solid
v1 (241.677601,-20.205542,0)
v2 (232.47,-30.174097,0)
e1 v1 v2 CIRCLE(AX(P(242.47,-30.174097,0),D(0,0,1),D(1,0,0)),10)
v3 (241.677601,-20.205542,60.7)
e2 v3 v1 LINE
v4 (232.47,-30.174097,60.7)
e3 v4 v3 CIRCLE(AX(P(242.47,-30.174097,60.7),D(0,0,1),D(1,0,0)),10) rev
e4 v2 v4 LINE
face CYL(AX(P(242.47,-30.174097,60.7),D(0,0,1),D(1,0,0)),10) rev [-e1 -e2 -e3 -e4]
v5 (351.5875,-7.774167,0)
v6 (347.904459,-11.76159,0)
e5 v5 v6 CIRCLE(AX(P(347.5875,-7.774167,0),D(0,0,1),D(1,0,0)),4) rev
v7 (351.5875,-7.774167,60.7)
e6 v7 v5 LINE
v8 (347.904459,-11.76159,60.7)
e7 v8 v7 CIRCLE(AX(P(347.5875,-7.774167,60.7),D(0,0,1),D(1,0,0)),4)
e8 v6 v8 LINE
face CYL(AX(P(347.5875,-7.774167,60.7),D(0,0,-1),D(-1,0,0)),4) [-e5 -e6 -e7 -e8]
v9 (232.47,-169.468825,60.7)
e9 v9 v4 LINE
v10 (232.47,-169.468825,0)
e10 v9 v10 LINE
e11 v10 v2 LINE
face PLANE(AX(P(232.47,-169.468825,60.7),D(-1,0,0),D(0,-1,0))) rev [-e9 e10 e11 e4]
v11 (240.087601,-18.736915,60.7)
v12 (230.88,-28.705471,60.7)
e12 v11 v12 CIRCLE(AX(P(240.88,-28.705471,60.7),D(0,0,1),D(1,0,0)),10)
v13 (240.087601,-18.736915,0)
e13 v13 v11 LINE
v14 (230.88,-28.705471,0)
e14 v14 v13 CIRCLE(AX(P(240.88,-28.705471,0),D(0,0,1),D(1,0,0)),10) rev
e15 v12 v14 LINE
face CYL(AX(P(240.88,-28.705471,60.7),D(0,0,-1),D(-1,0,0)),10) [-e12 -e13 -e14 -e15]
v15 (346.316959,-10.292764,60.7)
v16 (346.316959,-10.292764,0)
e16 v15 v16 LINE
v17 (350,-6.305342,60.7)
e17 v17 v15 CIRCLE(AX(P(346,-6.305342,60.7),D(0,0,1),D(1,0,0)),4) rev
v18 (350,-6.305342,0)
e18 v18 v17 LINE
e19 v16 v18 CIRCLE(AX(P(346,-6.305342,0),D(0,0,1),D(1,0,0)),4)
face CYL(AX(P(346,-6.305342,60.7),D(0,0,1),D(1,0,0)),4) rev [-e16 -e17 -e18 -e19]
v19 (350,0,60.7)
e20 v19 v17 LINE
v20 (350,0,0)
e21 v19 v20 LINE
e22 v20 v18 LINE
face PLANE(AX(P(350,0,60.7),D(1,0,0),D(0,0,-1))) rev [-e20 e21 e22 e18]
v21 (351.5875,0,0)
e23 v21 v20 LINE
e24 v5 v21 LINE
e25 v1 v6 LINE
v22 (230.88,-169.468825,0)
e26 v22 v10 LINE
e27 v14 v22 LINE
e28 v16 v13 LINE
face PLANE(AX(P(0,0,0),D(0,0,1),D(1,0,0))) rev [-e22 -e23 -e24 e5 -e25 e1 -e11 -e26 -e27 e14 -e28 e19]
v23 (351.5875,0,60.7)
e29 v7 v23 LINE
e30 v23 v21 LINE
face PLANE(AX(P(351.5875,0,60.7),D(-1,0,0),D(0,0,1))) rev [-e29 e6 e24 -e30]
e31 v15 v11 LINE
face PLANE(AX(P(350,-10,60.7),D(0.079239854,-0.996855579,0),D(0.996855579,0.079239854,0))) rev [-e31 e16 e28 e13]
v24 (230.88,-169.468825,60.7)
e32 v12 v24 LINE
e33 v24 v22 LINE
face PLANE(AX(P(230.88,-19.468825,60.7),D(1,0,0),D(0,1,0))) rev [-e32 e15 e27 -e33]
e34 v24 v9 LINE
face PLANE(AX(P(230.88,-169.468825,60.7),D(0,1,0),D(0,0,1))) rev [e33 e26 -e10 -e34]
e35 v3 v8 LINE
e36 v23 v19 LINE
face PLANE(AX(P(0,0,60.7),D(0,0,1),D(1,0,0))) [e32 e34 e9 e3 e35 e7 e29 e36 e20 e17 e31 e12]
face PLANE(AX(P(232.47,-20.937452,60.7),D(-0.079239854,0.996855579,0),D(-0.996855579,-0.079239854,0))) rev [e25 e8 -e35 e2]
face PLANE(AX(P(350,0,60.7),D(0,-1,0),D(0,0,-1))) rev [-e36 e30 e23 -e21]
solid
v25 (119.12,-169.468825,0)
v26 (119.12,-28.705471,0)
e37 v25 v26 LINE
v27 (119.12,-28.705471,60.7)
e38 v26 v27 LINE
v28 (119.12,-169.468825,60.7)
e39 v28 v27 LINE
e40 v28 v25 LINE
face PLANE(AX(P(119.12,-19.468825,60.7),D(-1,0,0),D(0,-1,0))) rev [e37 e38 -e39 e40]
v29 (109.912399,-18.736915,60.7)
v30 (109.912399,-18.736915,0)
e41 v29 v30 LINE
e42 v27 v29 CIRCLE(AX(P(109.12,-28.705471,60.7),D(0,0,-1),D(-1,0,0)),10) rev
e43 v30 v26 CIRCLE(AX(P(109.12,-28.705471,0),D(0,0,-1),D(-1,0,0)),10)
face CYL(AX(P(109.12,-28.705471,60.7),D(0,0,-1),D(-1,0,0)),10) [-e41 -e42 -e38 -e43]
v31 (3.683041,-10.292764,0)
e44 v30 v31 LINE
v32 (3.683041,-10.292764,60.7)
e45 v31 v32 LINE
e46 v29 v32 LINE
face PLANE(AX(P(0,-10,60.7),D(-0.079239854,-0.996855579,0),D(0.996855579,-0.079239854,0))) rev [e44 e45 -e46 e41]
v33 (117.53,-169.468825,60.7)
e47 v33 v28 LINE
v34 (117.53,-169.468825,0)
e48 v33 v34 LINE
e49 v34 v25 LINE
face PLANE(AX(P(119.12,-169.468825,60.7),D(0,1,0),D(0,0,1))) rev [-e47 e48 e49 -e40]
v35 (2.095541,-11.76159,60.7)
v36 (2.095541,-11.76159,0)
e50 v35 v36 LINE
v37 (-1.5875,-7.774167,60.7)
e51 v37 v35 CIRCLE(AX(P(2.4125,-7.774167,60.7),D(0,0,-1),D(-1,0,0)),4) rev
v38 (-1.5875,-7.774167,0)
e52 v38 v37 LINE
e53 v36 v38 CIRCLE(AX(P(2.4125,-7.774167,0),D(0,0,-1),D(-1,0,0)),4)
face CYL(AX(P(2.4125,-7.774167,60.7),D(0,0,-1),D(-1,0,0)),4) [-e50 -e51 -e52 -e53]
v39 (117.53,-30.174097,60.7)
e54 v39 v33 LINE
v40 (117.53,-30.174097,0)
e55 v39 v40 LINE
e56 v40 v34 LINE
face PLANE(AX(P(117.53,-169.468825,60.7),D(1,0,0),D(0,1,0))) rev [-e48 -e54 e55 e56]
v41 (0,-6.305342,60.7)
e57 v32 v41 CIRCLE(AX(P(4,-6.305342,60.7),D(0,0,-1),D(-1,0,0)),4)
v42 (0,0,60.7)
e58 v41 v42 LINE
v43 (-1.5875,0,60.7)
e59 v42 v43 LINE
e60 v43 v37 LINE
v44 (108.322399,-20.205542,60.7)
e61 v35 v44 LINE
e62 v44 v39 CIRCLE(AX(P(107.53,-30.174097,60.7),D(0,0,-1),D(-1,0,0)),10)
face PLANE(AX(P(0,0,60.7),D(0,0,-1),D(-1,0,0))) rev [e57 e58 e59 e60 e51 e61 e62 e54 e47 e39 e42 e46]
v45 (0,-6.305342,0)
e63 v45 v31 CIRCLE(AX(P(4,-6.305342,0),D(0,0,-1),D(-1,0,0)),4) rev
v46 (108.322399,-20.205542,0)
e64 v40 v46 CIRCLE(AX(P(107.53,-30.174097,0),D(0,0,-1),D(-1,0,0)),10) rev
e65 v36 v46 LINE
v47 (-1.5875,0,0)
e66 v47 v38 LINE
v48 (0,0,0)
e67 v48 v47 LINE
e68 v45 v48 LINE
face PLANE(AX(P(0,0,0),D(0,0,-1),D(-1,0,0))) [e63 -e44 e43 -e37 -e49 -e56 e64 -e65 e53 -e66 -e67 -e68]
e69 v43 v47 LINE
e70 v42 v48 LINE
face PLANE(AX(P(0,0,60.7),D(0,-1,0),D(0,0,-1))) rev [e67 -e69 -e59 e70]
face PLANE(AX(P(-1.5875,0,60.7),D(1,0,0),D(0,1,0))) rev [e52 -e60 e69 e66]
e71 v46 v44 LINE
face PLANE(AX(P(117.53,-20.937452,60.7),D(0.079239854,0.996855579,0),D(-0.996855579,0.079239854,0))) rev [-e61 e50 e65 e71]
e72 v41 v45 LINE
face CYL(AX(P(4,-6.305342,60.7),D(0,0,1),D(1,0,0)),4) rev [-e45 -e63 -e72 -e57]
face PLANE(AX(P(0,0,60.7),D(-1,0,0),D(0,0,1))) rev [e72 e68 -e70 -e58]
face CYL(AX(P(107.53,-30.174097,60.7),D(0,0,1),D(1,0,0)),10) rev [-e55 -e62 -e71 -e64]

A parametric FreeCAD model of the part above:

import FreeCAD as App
import Part
import Sketcher
Q = App.Units.Quantity


def edges_at(feature, points):
    """Names of the edges that pass closest to the given points."""
    edges = feature.Shape.Edges
    near = lambda p: min(range(len(edges)), key=lambda i: edges[i].distToShape(Part.Vertex(*p))[0])
    return sorted({f"Edge{near(p) + 1}" for p in points})


def add_polygon(sketch, points):
    """Adds a closed chain of lines whose ends are joined by coincident constraints."""
    first, n = sketch.GeometryCount, len(points)
    for a, b in zip(points, points[1:] + points[:1]):
        sketch.addGeometry(Part.LineSegment(App.Vector(*a, 0), App.Vector(*b, 0)), False)
    for i in range(n):
        sketch.addConstraint(Sketcher.Constraint("Coincident", first + i, 2, first + (i + 1) % n, 1))

doc = App.newDocument("Part")
body = doc.addObject("PartDesign::Body", "Body")

sketch1 = body.newObject("Sketcher::SketchObject", "Sketch")
sketch1.AttachmentSupport = (doc.getObject("XY_Plane"), [""])
sketch1.MapMode = "FlatFace"
add_polygon(sketch1, [(350, -10), (230.9, -19.5), (230.9, -169.5), (232.5, -169.5), (232.5, -20.9), (351.6, -11.5), (351.6, 0), (350, 0)])
sketch1.addConstraint(Sketcher.Constraint("Vertical", 1))
sketch1.addConstraint(Sketcher.Constraint("Horizontal", 2))
sketch1.addConstraint(Sketcher.Constraint("Vertical", 3))
sketch1.addConstraint(Sketcher.Constraint("Vertical", 5))
sketch1.addConstraint(Sketcher.Constraint("Horizontal", 6))
sketch1.addConstraint(Sketcher.Constraint("Vertical", 7))
sketch1.addConstraint(Sketcher.Constraint("PointOnObject", 5, 2, -1))
sketch1.addConstraint(Sketcher.Constraint("Parallel", 0, 4))
sketch1.addConstraint(Sketcher.Constraint("DistanceY", 1, 2, 1, 1, Q("150 mm")))
sketch1.addConstraint(Sketcher.Constraint("DistanceY", 7, 2, 7, 1, Q("10 mm")))
sketch1.addConstraint(Sketcher.Constraint("DistanceX", -1, 1, 6, 2, Q("350 mm")))
sketch1.addConstraint(Sketcher.Constraint("DistanceY", 0, 2, 4, 2, Q("8 mm")))
sketch1.addConstraint(Sketcher.Constraint("DistanceX", 2, 1, 2, 2, Q("1.59 mm")))
sketch1.addConstraint(Sketcher.Constraint("DistanceX", -1, 1, 0, 2, Q("230.88 mm")))
sketch1.addConstraint(Sketcher.Constraint("DistanceX", 6, 2, 6, 1, Q("1.5875 mm")))
sketch1.addConstraint(Sketcher.Constraint("DistanceY", 3, 1, 3, 2, Q("148.531373 mm")))
pad1 = body.newObject("PartDesign::Pad", "Pad")
pad1.Profile = sketch1
pad1.Length = 60.7
doc.recompute()

fillet = body.newObject("PartDesign::Fillet", "Fillet")
fillet.Base = (pad1, edges_at(pad1, [(232.47, -20.937, 30.35), (230.88, -19.469, 30.35)]))
fillet.Radius = 10
doc.recompute()

fillet2 = body.newObject("PartDesign::Fillet", "Fillet001")
fillet2.Base = (fillet, edges_at(fillet, [(351.587, -11.469, 30.35), (350, -10, 30.35)]))
fillet2.Radius = 4
body2 = doc.addObject("PartDesign::Body", "Body001")

sketch2 = body2.newObject("Sketcher::SketchObject", "Sketch001")
sketch2.AttachmentSupport = (doc.getObject("XY_Plane001"), [""])
sketch2.MapMode = "FlatFace"
add_polygon(sketch2, [(0, 0), (-1.6, 0), (-1.6, -11.5), (117.5, -20.9), (117.5, -169.5), (119.1, -169.5), (119.1, -19.5), (0, -10)])
sketch2.addConstraint(Sketcher.Constraint("Horizontal", 0))
sketch2.addConstraint(Sketcher.Constraint("Vertical", 1))
sketch2.addConstraint(Sketcher.Constraint("Vertical", 3))
sketch2.addConstraint(Sketcher.Constraint("Horizontal", 4))
sketch2.addConstraint(Sketcher.Constraint("Vertical", 5))
sketch2.addConstraint(Sketcher.Constraint("Vertical", 7))
sketch2.addConstraint(Sketcher.Constraint("Coincident", 7, 2, -1, 1))
sketch2.addConstraint(Sketcher.Constraint("Parallel", 2, 6))
sketch2.addConstraint(Sketcher.Constraint("DistanceY", 5, 1, 5, 2, Q("150 mm")))
sketch2.addConstraint(Sketcher.Constraint("DistanceY", 7, 1, 7, 2, Q("10 mm")))
sketch2.addConstraint(Sketcher.Constraint("DistanceY", 3, 2, 1, 2, Q("158 mm")))
sketch2.addConstraint(Sketcher.Constraint("DistanceX", 4, 1, 4, 2, Q("1.59 mm")))
sketch2.addConstraint(Sketcher.Constraint("DistanceX", -1, 1, 2, 2, Q("117.53 mm")))
sketch2.addConstraint(Sketcher.Constraint("DistanceX", 0, 2, 0, 1, Q("1.5875 mm")))
sketch2.addConstraint(Sketcher.Constraint("DistanceY", 1, 2, 1, 1, Q("11.468825 mm")))
pad2 = body2.newObject("PartDesign::Pad", "Pad001")
pad2.Profile = sketch2
pad2.Length = 60.7
doc.recompute()

fillet3 = body2.newObject("PartDesign::Fillet", "Fillet002")
fillet3.Base = (pad2, edges_at(pad2, [(119.12, -19.469, 30.35), (117.53, -20.937, 30.35)]))
fillet3.Radius = 10
doc.recompute()

fillet4 = body2.newObject("PartDesign::Fillet", "Fillet003")
fillet4.Base = (fillet3, edges_at(fillet3, [(0, -10, 30.35), (-1.587, -11.469, 30.35)]))
fillet4.Radius = 4

doc.recompute()
